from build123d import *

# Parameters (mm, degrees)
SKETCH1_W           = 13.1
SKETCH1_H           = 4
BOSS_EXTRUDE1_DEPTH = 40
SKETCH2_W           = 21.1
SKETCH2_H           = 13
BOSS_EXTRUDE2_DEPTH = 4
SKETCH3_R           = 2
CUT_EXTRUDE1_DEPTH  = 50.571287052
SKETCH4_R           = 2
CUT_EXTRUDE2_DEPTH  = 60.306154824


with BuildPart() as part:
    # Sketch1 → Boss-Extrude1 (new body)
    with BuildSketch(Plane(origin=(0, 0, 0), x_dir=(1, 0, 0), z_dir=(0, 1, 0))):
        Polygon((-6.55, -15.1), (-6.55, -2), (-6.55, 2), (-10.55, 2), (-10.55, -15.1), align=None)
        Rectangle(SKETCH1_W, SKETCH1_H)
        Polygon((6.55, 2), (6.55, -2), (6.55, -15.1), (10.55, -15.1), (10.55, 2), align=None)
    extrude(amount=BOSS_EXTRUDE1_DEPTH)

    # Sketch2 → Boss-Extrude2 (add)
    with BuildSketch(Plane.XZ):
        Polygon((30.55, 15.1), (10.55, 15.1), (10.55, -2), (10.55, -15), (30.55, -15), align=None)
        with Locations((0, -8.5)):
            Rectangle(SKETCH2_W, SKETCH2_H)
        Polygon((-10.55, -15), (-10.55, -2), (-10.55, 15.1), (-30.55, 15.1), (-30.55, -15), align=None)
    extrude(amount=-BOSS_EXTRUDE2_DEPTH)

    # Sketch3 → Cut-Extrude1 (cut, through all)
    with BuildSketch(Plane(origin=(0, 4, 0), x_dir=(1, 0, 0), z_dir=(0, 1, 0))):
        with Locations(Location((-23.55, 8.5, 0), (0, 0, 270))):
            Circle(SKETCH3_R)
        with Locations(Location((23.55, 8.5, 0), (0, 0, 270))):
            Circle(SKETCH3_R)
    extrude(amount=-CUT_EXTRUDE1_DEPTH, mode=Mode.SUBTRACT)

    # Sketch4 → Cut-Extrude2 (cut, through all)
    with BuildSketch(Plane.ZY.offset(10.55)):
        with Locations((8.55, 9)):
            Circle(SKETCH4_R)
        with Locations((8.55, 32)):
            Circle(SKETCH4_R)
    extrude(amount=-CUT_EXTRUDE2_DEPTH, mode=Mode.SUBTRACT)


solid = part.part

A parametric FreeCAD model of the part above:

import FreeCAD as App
import Part
import Sketcher

doc = App.newDocument("Part")
body = doc.addObject("PartDesign::Body", "Body")

sketch1 = body.newObject("Sketcher::SketchObject", "Sketch")
sketch1.AttachmentSupport = (doc.getObject("XZ_Plane"), [""])
sketch1.MapMode = "FlatFace"
sketch1.addGeometry([
    Part.LineSegment(App.Vector(-6.55, 15.1, 0), App.Vector(-6.55, 2, 0)),
    Part.LineSegment(App.Vector(-6.55, 2, 0), App.Vector(6.55, 2, 0)),
    Part.LineSegment(App.Vector(6.55, 2, 0), App.Vector(6.55, 15.1, 0)),
    Part.LineSegment(App.Vector(6.55, 15.1, 0), App.Vector(10.55, 15.1, 0)),
    Part.LineSegment(App.Vector(10.55, 15.1, 0), App.Vector(10.55, -2, 0)),
    Part.LineSegment(App.Vector(10.55, -2, 0), App.Vector(-10.55, -2, 0)),
    Part.LineSegment(App.Vector(-10.55, -2, 0), App.Vector(-10.55, 15.1, 0)),
    Part.LineSegment(App.Vector(-10.55, 15.1, 0), App.Vector(-6.55, 15.1, 0)),
], False)
sketch1.addConstraint([
    Sketcher.Constraint("Coincident", 0, 2, 1, 1),
    Sketcher.Constraint("Coincident", 1, 2, 2, 1),
    Sketcher.Constraint("Coincident", 2, 2, 3, 1),
    Sketcher.Constraint("Coincident", 3, 2, 4, 1),
    Sketcher.Constraint("Coincident", 4, 2, 5, 1),
    Sketcher.Constraint("Coincident", 5, 2, 6, 1),
    Sketcher.Constraint("Coincident", 6, 2, 7, 1),
    Sketcher.Constraint("Coincident", 7, 2, 0, 1),
    Sketcher.Constraint("Vertical", 0),
    Sketcher.Constraint("Horizontal", 1),
    Sketcher.Constraint("Vertical", 2),
    Sketcher.Constraint("Horizontal", 3),
    Sketcher.Constraint("Vertical", 4),
    Sketcher.Constraint("Horizontal", 5),
    Sketcher.Constraint("Vertical", 6),
    Sketcher.Constraint("Horizontal", 7),
    Sketcher.Constraint("Symmetric", 3, 2, 6, 2, -2),
    Sketcher.Constraint("Equal", 3, 7),
    Sketcher.Constraint("Equal", 1, 0),
    Sketcher.Constraint("DistanceX", 3, 1, 3, 2, 4.0),
    Sketcher.Constraint("DistanceX", 1, 1, 1, 2, 13.1),
    Sketcher.Constraint("DistanceY", 4, 2, 4, 1, 17.1),
    Sketcher.Constraint("DistanceY", -1, 1, 0, 2, 2.0),
])
pad1 = body.newObject("PartDesign::Pad", "Pad")
pad1.Profile = sketch1
pad1.Length = 40
pad1.Reversed = True

sketch2 = body.newObject("Sketcher::SketchObject", "Sketch001")
sketch2.AttachmentSupport = (doc.getObject("XZ_Plane"), [""])
sketch2.MapMode = "FlatFace"
sketch2.addGeometry([
    Part.LineSegment(App.Vector(30.55, 15.1, 0), App.Vector(10.55, 15.1, 0)),
    Part.LineSegment(App.Vector(10.55, 15.1, 0), App.Vector(10.55, -2, 0)),
    Part.LineSegment(App.Vector(10.55, -2, 0), App.Vector(-10.55, -2, 0)),
    Part.LineSegment(App.Vector(-10.55, -2, 0), App.Vector(-10.55, 15.1, 0)),
    Part.LineSegment(App.Vector(-10.55, 15.1, 0), App.Vector(-30.55, 15.1, 0)),
    Part.LineSegment(App.Vector(-30.55, 15.1, 0), App.Vector(-30.55, -15, 0)),
    Part.LineSegment(App.Vector(-30.55, -15, 0), App.Vector(30.55, -15, 0)),
    Part.LineSegment(App.Vector(30.55, -15, 0), App.Vector(30.55, 15.1, 0)),
], False)
sketch2.addConstraint([
    Sketcher.Constraint("Coincident", 0, 2, 1, 1),
    Sketcher.Constraint("Coincident", 1, 2, 2, 1),
    Sketcher.Constraint("Coincident", 2, 2, 3, 1),
    Sketcher.Constraint("Coincident", 3, 2, 4, 1),
    Sketcher.Constraint("Coincident", 4, 2, 5, 1),
    Sketcher.Constraint("Coincident", 5, 2, 6, 1),
    Sketcher.Constraint("Coincident", 6, 2, 7, 1),
    Sketcher.Constraint("Coincident", 7, 2, 0, 1),
    Sketcher.Constraint("Horizontal", 0),
    Sketcher.Constraint("Vertical", 1),
    Sketcher.Constraint("Horizontal", 2),
    Sketcher.Constraint("Vertical", 3),
    Sketcher.Constraint("Horizontal", 4),
    Sketcher.Constraint("Vertical", 5),
    Sketcher.Constraint("Horizontal", 6),
    Sketcher.Constraint("Vertical", 7),
    Sketcher.Constraint("Symmetric", 0, 2, 3, 2, -2),
    Sketcher.Constraint("Equal", 0, 4),
    Sketcher.Constraint("DistanceX", 0, 2, 0, 1, 20.0),
    Sketcher.Constraint("DistanceX", 2, 2, 2, 1, 21.1),
    Sketcher.Constraint("DistanceY", 1, 2, 1, 1, 17.1),
    Sketcher.Constraint("DistanceY", 5, 2, 5, 1, 30.1),
    Sketcher.Constraint("DistanceY", 1, 2, -1, 1, 2.0),
])
pad2 = body.newObject("PartDesign::Pad", "Pad001")
pad2.Profile = sketch2
pad2.Length = 4
pad2.Reversed = True

sketch3 = body.newObject("Sketcher::SketchObject", "Sketch002")
sketch3.AttachmentSupport = (doc.getObject("XZ_Plane"), [""])
sketch3.MapMode = "FlatFace"
sketch3.AttachmentOffset = App.Placement(App.Vector(0, 0, -4), App.Rotation())
sketch3.addGeometry([
    Part.Circle(App.Vector(-23.55, -8.5, 0), App.Vector(0, 0, 1), 2),
    Part.Circle(App.Vector(23.55, -8.5, 0), App.Vector(0, 0, 1), 2),
], False)
sketch3.addConstraint([
    Sketcher.Constraint("Equal", 0, 1),
    Sketcher.Constraint("Symmetric", 0, 3, 1, 3, -2),
    Sketcher.Constraint("Diameter", 0, 4.0),
    Sketcher.Constraint("DistanceY", 0, 3, -1, 1, 8.5),
    Sketcher.Constraint("DistanceX", 0, 3, 1, 3, 47.1),
])
pocket1 = body.newObject("PartDesign::Pocket", "Pocket")
pocket1.Profile = sketch3
pocket1.Type = "ThroughAll"
pocket1.Reversed = True

sketch4 = body.newObject("Sketcher::SketchObject", "Sketch003")
sketch4.AttachmentSupport = (doc.getObject("YZ_Plane"), [""])
sketch4.MapMode = "FlatFace"
sketch4.AttachmentOffset = App.Placement(App.Vector(0, 0, -10.55), App.Rotation())
sketch4.addGeometry([
    Part.Circle(App.Vector(9, 8.55, 0), App.Vector(0, 0, 1), 2),
    Part.Circle(App.Vector(32, 8.55, 0), App.Vector(0, 0, 1), 2),
], False)
sketch4.addConstraint([
    Sketcher.Constraint("Equal", 0, 1),
    Sketcher.Constraint("Horizontal", 0, 3, 1, 3),
    Sketcher.Constraint("Diameter", 0, 4.0),
    Sketcher.Constraint("DistanceX", -1, 1, 0, 3, 9.0),
    Sketcher.Constraint("DistanceX", -1, 1, 1, 3, 32.0),
    Sketcher.Constraint("DistanceY", -1, 1, 0, 3, 8.55),
])
pocket2 = body.newObject("PartDesign::Pocket", "Pocket001")
pocket2.Profile = sketch4
pocket2.Type = "ThroughAll"
pocket2.Reversed = True

doc.recompute()
